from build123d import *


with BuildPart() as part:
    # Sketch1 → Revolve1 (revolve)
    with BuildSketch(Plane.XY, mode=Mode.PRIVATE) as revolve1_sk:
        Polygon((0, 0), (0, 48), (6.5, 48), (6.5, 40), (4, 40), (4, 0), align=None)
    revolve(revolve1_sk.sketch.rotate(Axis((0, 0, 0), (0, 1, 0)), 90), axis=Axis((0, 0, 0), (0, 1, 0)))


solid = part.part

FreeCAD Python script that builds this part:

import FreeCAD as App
import Part
import Sketcher
from FreeCAD import Vector

doc = App.newDocument("Part")
body = doc.addObject("PartDesign::Body", "Body")

# Sketch on XY plane
sketch1 = doc.addObject("Sketcher::SketchObject", "Sketch")
body.addObject(sketch1)
sketch1.AttachmentSupport = (doc.XY_Plane, [""])
sketch1.MapMode = "FlatFace"
sketch1.addGeometry([
    Part.LineSegment(Vector(0, 48, 0), Vector(0, 0, 0)),  # 0
    Part.LineSegment(Vector(0, 0, 0), Vector(4, 0, 0)),  # 1
    Part.LineSegment(Vector(4, 0, 0), Vector(4, 40, 0)),  # 2
    Part.LineSegment(Vector(4, 40, 0), Vector(6.5, 40, 0)),  # 3
    Part.LineSegment(Vector(6.5, 40, 0), Vector(6.5, 48, 0)),  # 4
    Part.LineSegment(Vector(6.5, 48, 0), Vector(0, 48, 0)),  # 5
], False)
sketch1.addConstraint([
    Sketcher.Constraint("Coincident", 0, 2, 1, 1),
    Sketcher.Constraint("Coincident", 1, 2, 2, 1),
    Sketcher.Constraint("Coincident", 2, 2, 3, 1),
    Sketcher.Constraint("Coincident", 3, 2, 4, 1),
    Sketcher.Constraint("Coincident", 4, 2, 5, 1),
    Sketcher.Constraint("Coincident", 5, 2, 0, 1),
    Sketcher.Constraint("Vertical", 0),
    Sketcher.Constraint("Horizontal", 1),
    Sketcher.Constraint("Vertical", 2),
    Sketcher.Constraint("Horizontal", 3),
    Sketcher.Constraint("Vertical", 4),
    Sketcher.Constraint("Horizontal", 5),
    Sketcher.Constraint("Coincident", 0, 2, -1, 1),
    Sketcher.Constraint("DistanceX", 1, 1, 1, 2, 4.0),
    Sketcher.Constraint("DistanceY", 0, 2, 0, 1, 48.0),
    Sketcher.Constraint("DistanceY", 2, 1, 2, 2, 40.0),
    Sketcher.Constraint("DistanceX", 3, 1, 3, 2, 2.5),
])
revolution = doc.addObject("PartDesign::Revolution", "Revolution")
body.addObject(revolution)
revolution.Profile = sketch1
revolution.ReferenceAxis = (sketch1, ["V_Axis"])
revolution.Angle = 360

doc.recompute()
